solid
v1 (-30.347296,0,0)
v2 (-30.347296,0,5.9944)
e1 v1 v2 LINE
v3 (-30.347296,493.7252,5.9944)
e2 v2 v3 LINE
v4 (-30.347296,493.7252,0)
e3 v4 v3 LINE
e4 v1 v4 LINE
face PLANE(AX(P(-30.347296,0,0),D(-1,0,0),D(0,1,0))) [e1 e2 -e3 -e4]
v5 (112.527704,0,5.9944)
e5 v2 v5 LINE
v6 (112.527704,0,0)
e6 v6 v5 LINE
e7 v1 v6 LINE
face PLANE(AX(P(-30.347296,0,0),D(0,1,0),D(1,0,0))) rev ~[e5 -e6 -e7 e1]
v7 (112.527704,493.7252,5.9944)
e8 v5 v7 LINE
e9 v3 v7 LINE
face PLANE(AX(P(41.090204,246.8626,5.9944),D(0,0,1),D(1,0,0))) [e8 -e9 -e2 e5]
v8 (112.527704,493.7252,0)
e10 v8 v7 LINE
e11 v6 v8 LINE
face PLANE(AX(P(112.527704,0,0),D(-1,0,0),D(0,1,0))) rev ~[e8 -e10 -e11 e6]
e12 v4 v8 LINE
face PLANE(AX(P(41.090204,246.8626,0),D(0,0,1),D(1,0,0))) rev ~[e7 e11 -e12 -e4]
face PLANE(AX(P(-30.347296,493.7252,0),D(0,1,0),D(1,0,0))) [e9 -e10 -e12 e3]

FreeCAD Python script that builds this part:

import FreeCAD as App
import Part
import Sketcher
from FreeCAD import Vector
Q = App.Units.Quantity


def add_polygon(sketch, points):
    """Adds a closed chain of lines whose ends are joined by coincident constraints."""
    first, n = sketch.GeometryCount, len(points)
    for a, b in zip(points, points[1:] + points[:1]):
        sketch.addGeometry(Part.LineSegment(App.Vector(*a, 0), App.Vector(*b, 0)), False)
    for i in range(n):
        sketch.addConstraint(Sketcher.Constraint("Coincident", first + i, 2, first + (i + 1) % n, 1))

doc = App.newDocument("Part")
params = doc.addObject("Spreadsheet::Sheet", "Params")
for row, (alias, value) in enumerate([
    ("sketch1_width", "5.625 in"),
    ("sketch1_height", "19.438 in"),
    ("pad1_length", "0.236 in"),
], start=1):
    params.set(f"A{row}", alias)
    params.set(f"B{row}", "=" + value)
    params.setAlias(f"B{row}", alias)

body = doc.addObject("PartDesign::Body", "Body")

sketch1 = doc.addObject("Sketcher::SketchObject", "Sketch")
body.addObject(sketch1)
sketch1.AttachmentSupport = (doc.XY_Plane, [""])
sketch1.MapMode = "FlatFace"
add_polygon(sketch1, [(-30.347296, 493.7252), (-30.347296, 0), (112.527704, 0), (112.527704, 493.7252)])
sketch1.addConstraint(Sketcher.Constraint("Vertical", 0))
sketch1.addConstraint(Sketcher.Constraint("Horizontal", 1))
sketch1.addConstraint(Sketcher.Constraint("Vertical", 2))
sketch1.addConstraint(Sketcher.Constraint("Horizontal", 3))
sketch1.addConstraint(Sketcher.Constraint("PointOnObject", 0, 2, -1))
sketch1.addConstraint(Sketcher.Constraint("DistanceX", 1, 1, 1, 2, Q("5.625 in")))
sketch1.addConstraint(Sketcher.Constraint("DistanceY", 0, 2, 0, 1, Q("19.438 in")))
sketch1.addConstraint(Sketcher.Constraint("DistanceX", 0, 2, -1, 1, Q("30.347296 mm")))
sketch1.setExpression("Constraints[9]", "Params.sketch1_width")
sketch1.setExpression("Constraints[10]", "Params.sketch1_height")
pad1 = doc.addObject("PartDesign::Pad", "Pad")
body.addObject(pad1)
pad1.Profile = sketch1
pad1.setExpression("Length", "Params.pad1_length")

doc.recompute()
